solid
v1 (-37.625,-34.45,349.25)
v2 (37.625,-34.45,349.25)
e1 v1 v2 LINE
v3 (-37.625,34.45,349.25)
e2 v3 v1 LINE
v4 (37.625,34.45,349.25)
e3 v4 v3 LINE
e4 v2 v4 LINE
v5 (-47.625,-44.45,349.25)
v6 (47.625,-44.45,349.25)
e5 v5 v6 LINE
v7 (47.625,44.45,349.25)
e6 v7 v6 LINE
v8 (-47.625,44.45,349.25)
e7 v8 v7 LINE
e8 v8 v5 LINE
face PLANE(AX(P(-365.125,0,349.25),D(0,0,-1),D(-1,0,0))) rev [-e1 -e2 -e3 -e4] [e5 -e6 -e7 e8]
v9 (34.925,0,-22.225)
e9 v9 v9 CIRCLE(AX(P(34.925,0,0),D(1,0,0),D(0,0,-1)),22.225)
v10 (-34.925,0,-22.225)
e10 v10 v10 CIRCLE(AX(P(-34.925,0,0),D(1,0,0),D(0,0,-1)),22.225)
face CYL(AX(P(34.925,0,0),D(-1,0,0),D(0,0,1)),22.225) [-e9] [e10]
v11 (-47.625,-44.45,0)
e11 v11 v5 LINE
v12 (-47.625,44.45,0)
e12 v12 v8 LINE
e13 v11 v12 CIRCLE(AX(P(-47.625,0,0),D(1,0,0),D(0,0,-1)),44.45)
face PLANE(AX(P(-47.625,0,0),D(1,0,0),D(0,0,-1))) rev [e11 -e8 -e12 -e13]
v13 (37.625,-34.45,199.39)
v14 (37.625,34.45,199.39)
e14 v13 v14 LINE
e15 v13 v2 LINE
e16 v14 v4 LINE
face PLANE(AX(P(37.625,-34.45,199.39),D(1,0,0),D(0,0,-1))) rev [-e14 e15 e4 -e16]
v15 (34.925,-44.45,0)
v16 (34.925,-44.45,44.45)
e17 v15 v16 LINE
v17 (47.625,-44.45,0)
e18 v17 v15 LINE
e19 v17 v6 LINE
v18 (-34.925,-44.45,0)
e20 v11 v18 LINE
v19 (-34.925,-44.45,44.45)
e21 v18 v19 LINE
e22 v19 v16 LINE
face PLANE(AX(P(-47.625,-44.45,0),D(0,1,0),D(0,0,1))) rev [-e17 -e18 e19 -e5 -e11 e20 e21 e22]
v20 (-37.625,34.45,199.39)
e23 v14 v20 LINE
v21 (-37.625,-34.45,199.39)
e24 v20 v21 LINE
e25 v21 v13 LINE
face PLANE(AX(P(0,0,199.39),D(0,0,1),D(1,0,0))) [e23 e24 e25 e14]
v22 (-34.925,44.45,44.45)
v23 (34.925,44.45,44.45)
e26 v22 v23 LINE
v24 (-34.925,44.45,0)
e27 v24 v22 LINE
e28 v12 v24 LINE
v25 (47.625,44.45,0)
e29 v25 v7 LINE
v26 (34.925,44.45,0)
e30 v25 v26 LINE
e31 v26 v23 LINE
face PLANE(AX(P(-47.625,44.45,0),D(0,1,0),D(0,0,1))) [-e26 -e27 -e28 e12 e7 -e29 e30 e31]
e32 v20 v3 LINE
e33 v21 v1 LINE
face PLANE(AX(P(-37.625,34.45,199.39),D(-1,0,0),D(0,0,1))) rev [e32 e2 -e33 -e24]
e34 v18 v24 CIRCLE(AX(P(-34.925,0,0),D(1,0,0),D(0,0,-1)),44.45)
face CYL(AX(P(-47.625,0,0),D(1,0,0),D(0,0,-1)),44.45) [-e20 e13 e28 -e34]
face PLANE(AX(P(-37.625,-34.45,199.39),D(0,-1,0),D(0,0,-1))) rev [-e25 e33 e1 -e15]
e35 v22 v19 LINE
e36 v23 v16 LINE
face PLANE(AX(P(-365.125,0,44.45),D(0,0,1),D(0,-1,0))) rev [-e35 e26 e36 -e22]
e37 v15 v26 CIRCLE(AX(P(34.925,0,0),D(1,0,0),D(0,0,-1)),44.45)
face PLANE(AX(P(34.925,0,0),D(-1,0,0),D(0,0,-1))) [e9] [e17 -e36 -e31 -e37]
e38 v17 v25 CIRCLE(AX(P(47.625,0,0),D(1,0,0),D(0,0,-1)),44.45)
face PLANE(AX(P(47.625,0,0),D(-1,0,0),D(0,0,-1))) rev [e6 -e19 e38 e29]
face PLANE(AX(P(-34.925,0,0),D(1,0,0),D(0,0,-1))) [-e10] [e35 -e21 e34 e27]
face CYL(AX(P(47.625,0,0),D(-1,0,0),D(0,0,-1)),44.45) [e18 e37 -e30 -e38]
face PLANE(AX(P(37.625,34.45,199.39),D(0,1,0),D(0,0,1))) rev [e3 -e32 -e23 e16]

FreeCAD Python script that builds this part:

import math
import FreeCAD as App
import Part
import Sketcher
from FreeCAD import Vector
Q = App.Units.Quantity


def add_polygon(sketch, points):
    """Adds a closed chain of lines whose ends are joined by coincident constraints."""
    first, n = sketch.GeometryCount, len(points)
    for a, b in zip(points, points[1:] + points[:1]):
        sketch.addGeometry(Part.LineSegment(App.Vector(*a, 0), App.Vector(*b, 0)), False)
    for i in range(n):
        sketch.addConstraint(Sketcher.Constraint("Coincident", first + i, 2, first + (i + 1) % n, 1))

doc = App.newDocument("Part")
body = doc.addObject("PartDesign::Body", "Body")

# Sketch on YZ plane
sketch1 = body.newObject("Sketcher::SketchObject", "Sketch")
sketch1.AttachmentSupport = (doc.getObject("YZ_Plane"), [""])
sketch1.MapMode = "FlatFace"
sketch1.addGeometry(Part.Circle(Vector(0, 0, 0), Vector(0, 0, 1), 22), False)
sketch1.addConstraint([
    Sketcher.Constraint("Coincident", 0, 3, -1, 1),
    Sketcher.Constraint("Diameter", 0, Q("1.75 in")),
])
pad1 = body.newObject("PartDesign::Pad", "Pad")
pad1.Profile = sketch1
pad1.Length = Q("2.75 in")
pad1.Midplane = True

# Sketch on YZ plane
sketch2 = body.newObject("Sketcher::SketchObject", "Sketch001")
sketch2.AttachmentSupport = (doc.getObject("YZ_Plane"), [""])
sketch2.MapMode = "FlatFace"
sketch2.AttachmentOffset = App.Placement(Vector(0, 0, -1.375 * 25.4), App.Rotation())
sketch2.addGeometry([
    Part.LineSegment(Vector(44, 0, 0), Vector(44, 44, 0)),
    Part.LineSegment(Vector(44, 44, 0), Vector(-44, 44, 0)),
    Part.LineSegment(Vector(-44, 44, 0), Vector(-44, 0, 0)),
    Part.ArcOfCircle(Part.Circle(Vector(0, 0, 0), Vector(0, 0, 1), 44), math.radians(180), math.radians(360)),
], False)
sketch2.addConstraint([
    Sketcher.Constraint("Coincident", 0, 2, 1, 1),
    Sketcher.Constraint("Coincident", 1, 2, 2, 1),
    Sketcher.Constraint("Tangent", 2, 2, 3, 1),
    Sketcher.Constraint("Tangent", 3, 2, 0, 1),
    Sketcher.Constraint("Vertical", 0),
    Sketcher.Constraint("Horizontal", 1),
    Sketcher.Constraint("Vertical", 2),
    Sketcher.Constraint("Coincident", 3, 3, -1, 1),
    Sketcher.Constraint("Radius", 3, Q("1.75 in")),
    Sketcher.Constraint("DistanceY", 0, 1, 0, 2, Q("1.75 in")),
])
pad2 = body.newObject("PartDesign::Pad", "Pad001")
pad2.Profile = sketch2
pad2.Length = Q("0.5 in")
pad2.Reversed = True

# Sketch on YZ plane
sketch3 = body.newObject("Sketcher::SketchObject", "Sketch002")
sketch3.AttachmentSupport = (doc.getObject("YZ_Plane"), [""])
sketch3.MapMode = "FlatFace"
add_polygon(sketch3, [(44, 349), (-44, 349), (-44, 44), (44, 44)])  # lines 0-3
sketch3.addConstraint([
    Sketcher.Constraint("Horizontal", 0),
    Sketcher.Constraint("Vertical", 1),
    Sketcher.Constraint("Horizontal", 2),
    Sketcher.Constraint("Vertical", 3),
    Sketcher.Constraint("DistanceY", 1, 2, 1, 1, Q("12 in")),
    Sketcher.Constraint("DistanceX", 0, 2, 0, 1, Q("3.5 in")),
    Sketcher.Constraint("DistanceX", 0, 2, -1, 1, Q("1.75 in")),
    Sketcher.Constraint("DistanceY", -1, 1, 0, 2, Q("13.75 in")),
])
pad3 = body.newObject("PartDesign::Pad", "Pad002")
pad3.Profile = sketch3
pad3.Length = Q("1.875 in")
pad3.Reversed = True
body2 = doc.addObject("PartDesign::Body", "Body001")
doc.recompute()

body2.BaseFeature = body
doc.recompute()

mirroring = doc.addObject("Part::Mirroring", "Mirroring")
mirroring.Source = body
mirroring.Base = Vector(0, 0, 0)
mirroring.Normal = Vector(1, 0, 0)
body3 = doc.addObject("PartDesign::Body", "Body002")
body3.BaseFeature = mirroring
boolean = body2.newObject("PartDesign::Boolean", "Boolean")
boolean.Type = "Fuse"
boolean.addObjects([body3])
doc.recompute()

# Sketch on XY plane
sketch4 = body2.newObject("Sketcher::SketchObject", "Sketch003")
sketch4.AttachmentSupport = (doc.getObject("XY_Plane001"), [""])
sketch4.MapMode = "FlatFace"
sketch4.AttachmentOffset = App.Placement(Vector(0, 0, 13.75 * 25.4), App.Rotation())
add_polygon(sketch4, [(-38, 34), (-38, -34), (38, -34), (38, 34)])  # lines 0-3
sketch4.addConstraint([
    Sketcher.Constraint("Vertical", 0),
    Sketcher.Constraint("Horizontal", 1),
    Sketcher.Constraint("Vertical", 2),
    Sketcher.Constraint("Horizontal", 3),
    Sketcher.Constraint("Symmetric", 0, 2, 2, 2, -1, 1),
    Sketcher.Constraint("DistanceX", 1, 1, 1, 2, 75.25),
    Sketcher.Constraint("DistanceY", 0, 2, 0, 1, 68.9),
])
pocket1 = body2.newObject("PartDesign::Pocket", "Pocket")
pocket1.Profile = sketch4
pocket1.Length = Q("5.9 in")
mirroring.Visibility = False

doc.recompute()
